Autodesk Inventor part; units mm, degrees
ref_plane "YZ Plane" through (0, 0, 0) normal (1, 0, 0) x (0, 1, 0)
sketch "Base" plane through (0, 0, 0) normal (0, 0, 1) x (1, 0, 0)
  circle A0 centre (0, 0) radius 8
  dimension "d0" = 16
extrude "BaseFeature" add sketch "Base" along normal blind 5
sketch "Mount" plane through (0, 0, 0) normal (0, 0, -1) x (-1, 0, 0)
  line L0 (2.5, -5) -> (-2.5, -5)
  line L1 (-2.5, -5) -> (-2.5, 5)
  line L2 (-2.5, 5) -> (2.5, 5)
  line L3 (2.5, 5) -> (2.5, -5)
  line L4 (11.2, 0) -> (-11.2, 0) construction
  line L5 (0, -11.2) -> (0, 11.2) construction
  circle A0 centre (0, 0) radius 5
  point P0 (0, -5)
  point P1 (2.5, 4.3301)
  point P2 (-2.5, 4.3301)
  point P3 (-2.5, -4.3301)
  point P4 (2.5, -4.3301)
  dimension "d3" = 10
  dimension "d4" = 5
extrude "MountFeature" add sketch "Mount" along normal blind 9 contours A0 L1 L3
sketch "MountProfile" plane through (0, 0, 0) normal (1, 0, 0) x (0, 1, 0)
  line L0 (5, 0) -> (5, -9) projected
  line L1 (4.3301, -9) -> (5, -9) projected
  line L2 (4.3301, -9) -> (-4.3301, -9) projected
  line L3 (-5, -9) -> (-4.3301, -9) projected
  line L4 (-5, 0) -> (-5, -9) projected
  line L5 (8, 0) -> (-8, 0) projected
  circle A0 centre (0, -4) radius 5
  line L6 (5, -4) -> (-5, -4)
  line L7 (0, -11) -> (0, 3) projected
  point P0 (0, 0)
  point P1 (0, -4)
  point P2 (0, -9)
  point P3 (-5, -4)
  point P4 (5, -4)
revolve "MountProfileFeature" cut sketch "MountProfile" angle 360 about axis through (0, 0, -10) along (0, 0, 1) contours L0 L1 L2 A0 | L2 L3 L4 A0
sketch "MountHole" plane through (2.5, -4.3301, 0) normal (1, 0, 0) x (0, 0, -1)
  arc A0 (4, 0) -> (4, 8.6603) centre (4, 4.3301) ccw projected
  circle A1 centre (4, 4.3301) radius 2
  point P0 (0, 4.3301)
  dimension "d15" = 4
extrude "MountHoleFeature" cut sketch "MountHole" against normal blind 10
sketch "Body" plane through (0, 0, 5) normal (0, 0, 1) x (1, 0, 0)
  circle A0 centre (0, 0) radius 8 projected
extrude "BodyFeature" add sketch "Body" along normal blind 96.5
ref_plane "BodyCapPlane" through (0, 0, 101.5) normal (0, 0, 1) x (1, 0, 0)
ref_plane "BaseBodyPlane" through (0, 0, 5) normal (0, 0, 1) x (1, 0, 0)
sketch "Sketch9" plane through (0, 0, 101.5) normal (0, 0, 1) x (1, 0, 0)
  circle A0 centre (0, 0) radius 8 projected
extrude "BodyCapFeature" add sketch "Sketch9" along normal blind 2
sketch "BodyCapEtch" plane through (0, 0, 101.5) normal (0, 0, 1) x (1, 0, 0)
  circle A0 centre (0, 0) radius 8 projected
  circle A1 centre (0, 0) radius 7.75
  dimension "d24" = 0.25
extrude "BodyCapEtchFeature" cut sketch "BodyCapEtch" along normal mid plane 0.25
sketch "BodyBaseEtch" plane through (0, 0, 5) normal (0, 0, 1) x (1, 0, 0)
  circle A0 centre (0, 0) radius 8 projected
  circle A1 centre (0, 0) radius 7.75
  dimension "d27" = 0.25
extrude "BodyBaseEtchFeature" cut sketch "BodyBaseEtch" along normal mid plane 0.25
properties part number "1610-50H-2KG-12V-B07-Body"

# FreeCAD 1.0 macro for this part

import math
import FreeCAD as App
import Part
import Sketcher
Q = App.Units.Quantity

doc = App.newDocument("Part")
body = doc.addObject("PartDesign::Body", "Body")

sketch1 = body.newObject("Sketcher::SketchObject", "Sketch")
sketch1.AttachmentSupport = (doc.getObject("XY_Plane"), [""])
sketch1.MapMode = "FlatFace"
sketch1.addGeometry(Part.Circle(App.Vector(0, 0, 0), App.Vector(0, 0, 1), 8), False)
sketch1.addConstraint([
    Sketcher.Constraint("Coincident", 0, 3, -1, 1),
    Sketcher.Constraint("Diameter", 0, Q("16 mm")),
])
pad1 = body.newObject("PartDesign::Pad", "Pad")
pad1.Profile = sketch1
pad1.Length = 5

sketch2 = body.newObject("Sketcher::SketchObject", "Sketch001")
sketch2.AttachmentSupport = (doc.getObject("XY_Plane"), [""])
sketch2.MapMode = "FlatFace"
sketch2.addGeometry([
    Part.ArcOfCircle(Part.Circle(App.Vector(0, 0, 0), App.Vector(0, 0, 1), 5), math.radians(-120), math.radians(-60)),
    Part.LineSegment(App.Vector(-2, -4, 0), App.Vector(-2, 4, 0)),
    Part.ArcOfCircle(Part.Circle(App.Vector(0, 0, 0), App.Vector(0, 0, 1), 5), math.radians(60), math.radians(120)),
    Part.LineSegment(App.Vector(2, 4, 0), App.Vector(2, -4, 0)),
], False)
sketch2.addConstraint([
    Sketcher.Constraint("Coincident", 0, 1, 1, 1),
    Sketcher.Constraint("Coincident", 1, 2, 2, 2),
    Sketcher.Constraint("Coincident", 2, 1, 3, 1),
    Sketcher.Constraint("Coincident", 3, 2, 0, 2),
    Sketcher.Constraint("Vertical", 1),
    Sketcher.Constraint("Vertical", 3),
    Sketcher.Constraint("Coincident", 0, 3, -1, 1),
    Sketcher.Constraint("Coincident", 2, 3, -1, 1),
    Sketcher.Constraint("Equal", 0, 2),
    Sketcher.Constraint("Horizontal", 1, 2, 2, 1),
    Sketcher.Constraint("Radius", 0, Q("5 mm")),
    Sketcher.Constraint("DistanceX", 1, 2, 2, 1, Q("5 mm")),
])
pad2 = body.newObject("PartDesign::Pad", "Pad001")
pad2.Profile = sketch2
pad2.Length = 9
pad2.Reversed = True

sketch3 = body.newObject("Sketcher::SketchObject", "Sketch002")
sketch3.AttachmentSupport = (doc.getObject("YZ_Plane"), [""])
sketch3.MapMode = "FlatFace"
sketch3.addGeometry([
    Part.LineSegment(App.Vector(5, -9, 0), App.Vector(5, -4, 0)),
    Part.ArcOfCircle(Part.Circle(App.Vector(0, -4, 0), App.Vector(0, 0, 1), 5), math.radians(-90), math.radians(0)),
    Part.LineSegment(App.Vector(0, -9, 0), App.Vector(5, -9, 0)),
    Part.LineSegment(App.Vector(-5, -9, 0), App.Vector(0, -9, 0)),
    Part.ArcOfCircle(Part.Circle(App.Vector(0, -4, 0), App.Vector(0, 0, 1), 5), math.radians(180), math.radians(270)),
    Part.LineSegment(App.Vector(-5, -4, 0), App.Vector(-5, -9, 0)),
], False)
sketch3.addConstraint([
    Sketcher.Constraint("Tangent", 0, 2, 1, 2),
    Sketcher.Constraint("Tangent", 1, 1, 2, 1),
    Sketcher.Constraint("Coincident", 2, 2, 0, 1),
    Sketcher.Constraint("Tangent", 3, 2, 4, 2),
    Sketcher.Constraint("Tangent", 4, 1, 5, 1),
    Sketcher.Constraint("Coincident", 5, 2, 3, 1),
    Sketcher.Constraint("Vertical", 0),
    Sketcher.Constraint("Horizontal", 2),
    Sketcher.Constraint("Horizontal", 3),
    Sketcher.Constraint("Vertical", 5),
    Sketcher.Constraint("Coincident", 4, 3, 1, 3),
    Sketcher.Constraint("Equal", 1, 4),
    Sketcher.Constraint("PointOnObject", 1, 3, -2),
    Sketcher.Constraint("Radius", 1, Q("5 mm")),
    Sketcher.Constraint("DistanceY", 1, 3, -1, 1, Q("4 mm")),
])
groove = body.newObject("PartDesign::Groove", "Groove")
groove.Profile = sketch3
groove.ReferenceAxis = (sketch3, ["V_Axis"])
groove.Angle = 360

sketch4 = body.newObject("Sketcher::SketchObject", "Sketch003")
sketch4.AttachmentSupport = (doc.getObject("YZ_Plane"), [""])
sketch4.MapMode = "FlatFace"
sketch4.AttachmentOffset = App.Placement(App.Vector(0, 0, 2.5), App.Rotation())
sketch4.addGeometry(Part.Circle(App.Vector(0, -4, 0), App.Vector(0, 0, 1), 2), False)
sketch4.addConstraint([
    Sketcher.Constraint("PointOnObject", 0, 3, -2),
    Sketcher.Constraint("Diameter", 0, Q("4 mm")),
    Sketcher.Constraint("DistanceY", 0, 3, -1, 1, Q("4 mm")),
])
pocket1 = body.newObject("PartDesign::Pocket", "Pocket")
pocket1.Profile = sketch4
pocket1.Length = 10

sketch5 = body.newObject("Sketcher::SketchObject", "Sketch004")
sketch5.AttachmentSupport = (doc.getObject("XY_Plane"), [""])
sketch5.MapMode = "FlatFace"
sketch5.AttachmentOffset = App.Placement(App.Vector(0, 0, 5), App.Rotation())
sketch5.addGeometry(Part.Circle(App.Vector(0, 0, 0), App.Vector(0, 0, 1), 8), False)
sketch5.addConstraint([
    Sketcher.Constraint("Coincident", 0, 3, -1, 1),
    Sketcher.Constraint("Diameter", 0, Q("16 mm")),
])
pad3 = body.newObject("PartDesign::Pad", "Pad002")
pad3.Profile = sketch5
pad3.Length = 96.5

sketch6 = body.newObject("Sketcher::SketchObject", "Sketch005")
sketch6.AttachmentSupport = (doc.getObject("XY_Plane"), [""])
sketch6.MapMode = "FlatFace"
sketch6.AttachmentOffset = App.Placement(App.Vector(0, 0, 101.5), App.Rotation())
sketch6.addGeometry(Part.Circle(App.Vector(0, 0, 0), App.Vector(0, 0, 1), 8), False)
sketch6.addConstraint([
    Sketcher.Constraint("Coincident", 0, 3, -1, 1),
    Sketcher.Constraint("Diameter", 0, Q("16 mm")),
])
pad4 = body.newObject("PartDesign::Pad", "Pad003")
pad4.Profile = sketch6
pad4.Length = 2

sketch7 = body.newObject("Sketcher::SketchObject", "Sketch006")
sketch7.AttachmentSupport = (doc.getObject("XY_Plane"), [""])
sketch7.MapMode = "FlatFace"
sketch7.AttachmentOffset = App.Placement(App.Vector(0, 0, 101.5), App.Rotation())
sketch7.addGeometry([
    Part.Circle(App.Vector(0, 0, 0), App.Vector(0, 0, 1), 8),
    Part.Circle(App.Vector(0, 0, 0), App.Vector(0, 0, 1), 8),
], False)
sketch7.addConstraint([
    Sketcher.Constraint("Coincident", 0, 3, -1, 1),
    Sketcher.Constraint("Coincident", 1, 3, -1, 1),
    Sketcher.Constraint("Diameter", 0, Q("16 mm")),
    Sketcher.Constraint("Diameter", 1, Q("15.5 mm")),
])
pocket2 = body.newObject("PartDesign::Pocket", "Pocket001")
pocket2.Profile = sketch7
pocket2.Length = 0.25
pocket2.Midplane = True

sketch8 = body.newObject("Sketcher::SketchObject", "Sketch007")
sketch8.AttachmentSupport = (doc.getObject("XY_Plane"), [""])
sketch8.MapMode = "FlatFace"
sketch8.AttachmentOffset = App.Placement(App.Vector(0, 0, 5), App.Rotation())
sketch8.addGeometry([
    Part.Circle(App.Vector(0, 0, 0), App.Vector(0, 0, 1), 8),
    Part.Circle(App.Vector(0, 0, 0), App.Vector(0, 0, 1), 8),
], False)
sketch8.addConstraint([
    Sketcher.Constraint("Coincident", 0, 3, -1, 1),
    Sketcher.Constraint("Coincident", 1, 3, -1, 1),
    Sketcher.Constraint("Diameter", 0, Q("16 mm")),
    Sketcher.Constraint("Diameter", 1, Q("15.5 mm")),
])
pocket3 = body.newObject("PartDesign::Pocket", "Pocket002")
pocket3.Profile = sketch8
pocket3.Length = 0.25
pocket3.Midplane = True

doc.recompute()
